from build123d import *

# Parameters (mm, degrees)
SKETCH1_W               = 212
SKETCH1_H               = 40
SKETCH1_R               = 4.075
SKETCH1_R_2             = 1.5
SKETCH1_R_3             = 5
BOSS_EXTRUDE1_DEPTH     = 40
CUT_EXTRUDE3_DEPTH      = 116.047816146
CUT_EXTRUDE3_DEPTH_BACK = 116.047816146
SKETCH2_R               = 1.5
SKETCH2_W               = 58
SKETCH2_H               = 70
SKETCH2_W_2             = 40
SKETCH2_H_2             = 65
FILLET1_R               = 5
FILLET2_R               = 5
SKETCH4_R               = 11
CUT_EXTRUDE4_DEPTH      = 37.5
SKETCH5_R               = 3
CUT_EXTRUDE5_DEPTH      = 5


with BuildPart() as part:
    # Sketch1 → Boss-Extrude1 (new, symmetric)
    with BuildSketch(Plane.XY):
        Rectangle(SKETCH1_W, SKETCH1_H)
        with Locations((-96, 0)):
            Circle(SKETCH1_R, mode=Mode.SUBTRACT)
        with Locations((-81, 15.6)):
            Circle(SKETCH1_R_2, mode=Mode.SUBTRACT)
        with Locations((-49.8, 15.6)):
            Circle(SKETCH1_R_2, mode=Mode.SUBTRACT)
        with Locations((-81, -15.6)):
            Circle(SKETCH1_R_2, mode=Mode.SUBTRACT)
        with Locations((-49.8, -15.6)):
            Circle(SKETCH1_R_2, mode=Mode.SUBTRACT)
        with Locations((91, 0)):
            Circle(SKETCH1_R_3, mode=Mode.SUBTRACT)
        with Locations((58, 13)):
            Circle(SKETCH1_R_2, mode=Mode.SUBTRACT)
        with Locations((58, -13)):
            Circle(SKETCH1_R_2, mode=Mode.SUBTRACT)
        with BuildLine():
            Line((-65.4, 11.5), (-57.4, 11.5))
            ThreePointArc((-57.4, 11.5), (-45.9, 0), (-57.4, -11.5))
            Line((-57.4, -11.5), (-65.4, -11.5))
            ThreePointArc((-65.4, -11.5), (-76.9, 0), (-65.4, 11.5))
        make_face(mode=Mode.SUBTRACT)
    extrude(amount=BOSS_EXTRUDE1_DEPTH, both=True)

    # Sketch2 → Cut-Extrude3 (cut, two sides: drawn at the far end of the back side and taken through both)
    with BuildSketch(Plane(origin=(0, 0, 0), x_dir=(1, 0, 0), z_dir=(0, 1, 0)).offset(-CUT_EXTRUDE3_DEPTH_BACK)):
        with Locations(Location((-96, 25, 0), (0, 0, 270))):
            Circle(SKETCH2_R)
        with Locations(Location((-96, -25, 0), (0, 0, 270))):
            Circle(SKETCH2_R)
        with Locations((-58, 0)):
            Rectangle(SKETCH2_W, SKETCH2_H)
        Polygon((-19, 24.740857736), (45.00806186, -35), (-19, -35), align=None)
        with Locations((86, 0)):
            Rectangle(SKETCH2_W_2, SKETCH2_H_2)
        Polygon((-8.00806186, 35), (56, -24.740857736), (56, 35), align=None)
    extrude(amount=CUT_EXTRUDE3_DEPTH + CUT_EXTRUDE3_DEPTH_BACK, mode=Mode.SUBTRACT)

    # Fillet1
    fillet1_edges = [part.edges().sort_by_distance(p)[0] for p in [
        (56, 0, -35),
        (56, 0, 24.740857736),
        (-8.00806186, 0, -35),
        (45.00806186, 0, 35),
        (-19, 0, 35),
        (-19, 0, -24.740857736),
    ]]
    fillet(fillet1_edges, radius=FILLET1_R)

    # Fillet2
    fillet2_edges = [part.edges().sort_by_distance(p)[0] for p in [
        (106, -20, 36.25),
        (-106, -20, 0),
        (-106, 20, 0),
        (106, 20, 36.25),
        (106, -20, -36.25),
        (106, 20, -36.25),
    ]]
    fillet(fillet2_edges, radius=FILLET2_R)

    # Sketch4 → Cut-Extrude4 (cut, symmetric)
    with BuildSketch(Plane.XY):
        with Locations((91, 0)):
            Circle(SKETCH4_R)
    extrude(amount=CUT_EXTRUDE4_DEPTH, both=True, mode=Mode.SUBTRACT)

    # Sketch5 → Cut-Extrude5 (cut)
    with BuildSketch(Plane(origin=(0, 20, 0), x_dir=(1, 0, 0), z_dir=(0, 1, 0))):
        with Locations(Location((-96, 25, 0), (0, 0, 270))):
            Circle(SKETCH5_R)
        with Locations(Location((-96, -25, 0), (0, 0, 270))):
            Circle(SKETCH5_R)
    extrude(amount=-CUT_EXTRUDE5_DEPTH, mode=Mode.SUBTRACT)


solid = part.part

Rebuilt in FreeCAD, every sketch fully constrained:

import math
import FreeCAD as App
import Part
import Sketcher
Q = App.Units.Quantity


def edges_at(feature, points):
    """Names of the edges that pass closest to the given points."""
    edges = feature.Shape.Edges
    near = lambda p: min(range(len(edges)), key=lambda i: edges[i].distToShape(Part.Vertex(*p))[0])
    return sorted({f"Edge{near(p) + 1}" for p in points})

doc = App.newDocument("Part")
body = doc.addObject("PartDesign::Body", "Body")

# Sketch on XY plane
sketch1 = body.newObject("Sketcher::SketchObject", "Sketch")
sketch1.AttachmentSupport = (doc.getObject("XY_Plane"), [""])
sketch1.MapMode = "FlatFace"
sketch1.addGeometry([
    Part.LineSegment(App.Vector(-106, 20, 0), App.Vector(-106, -20, 0)),  # 0
    Part.LineSegment(App.Vector(-106, -20, 0), App.Vector(106, -20, 0)),  # 1
    Part.LineSegment(App.Vector(106, -20, 0), App.Vector(106, 20, 0)),  # 2
    Part.LineSegment(App.Vector(106, 20, 0), App.Vector(-106, 20, 0)),  # 3
    Part.Circle(App.Vector(-81, -15.6, 0), App.Vector(0, 0, 1), 1.5),  # 4
    Part.Circle(App.Vector(-49.8, -15.6, 0), App.Vector(0, 0, 1), 1.5),  # 5
    Part.Circle(App.Vector(58, -13, 0), App.Vector(0, 0, 1), 1.5),  # 6
    Part.Circle(App.Vector(-96, 0, 0), App.Vector(0, 0, 1), 4.1),  # 7
    Part.ArcOfCircle(Part.Circle(App.Vector(-65.4, 0, 0), App.Vector(0, 0, 1), 11.5), math.radians(90), math.radians(270)),  # 8
    Part.LineSegment(App.Vector(-65.4, 11.5, 0), App.Vector(-57.4, 11.5, 0)),  # 9
    Part.ArcOfCircle(Part.Circle(App.Vector(-57.4, 0, 0), App.Vector(0, 0, 1), 11.5), math.radians(-90), math.radians(90)),  # 10
    Part.LineSegment(App.Vector(-57.4, -11.5, 0), App.Vector(-65.4, -11.5, 0)),  # 11
    Part.Circle(App.Vector(-81, 15.6, 0), App.Vector(0, 0, 1), 1.5),  # 12
    Part.Circle(App.Vector(-49.8, 15.6, 0), App.Vector(0, 0, 1), 1.5),  # 13
    Part.Circle(App.Vector(91, 0, 0), App.Vector(0, 0, 1), 5),  # 14
    Part.Circle(App.Vector(58, 13, 0), App.Vector(0, 0, 1), 1.5),  # 15
], False)
sketch1.addConstraint([
    Sketcher.Constraint("Coincident", 0, 2, 1, 1),
    Sketcher.Constraint("Coincident", 1, 2, 2, 1),
    Sketcher.Constraint("Coincident", 2, 2, 3, 1),
    Sketcher.Constraint("Coincident", 3, 2, 0, 1),
    Sketcher.Constraint("Tangent", 8, 1, 9, 1),
    Sketcher.Constraint("Tangent", 9, 2, 10, 2),
    Sketcher.Constraint("Tangent", 10, 1, 11, 1),
    Sketcher.Constraint("Tangent", 11, 2, 8, 2),
    Sketcher.Constraint("Vertical", 0),
    Sketcher.Constraint("Horizontal", 1),
    Sketcher.Constraint("Vertical", 2),
    Sketcher.Constraint("Horizontal", 3),
    Sketcher.Constraint("Horizontal", 9),
    Sketcher.Constraint("Horizontal", 11),
    Sketcher.Constraint("Equal", 4, 5),
    Sketcher.Constraint("Equal", 5, 6),
    Sketcher.Constraint("Equal", 6, 12),
    Sketcher.Constraint("Equal", 12, 13),
    Sketcher.Constraint("Equal", 13, 15),
    Sketcher.Constraint("Symmetric", 0, 2, 2, 2, -1, 1),
    Sketcher.Constraint("Symmetric", 4, 3, 12, 3, -1),
    Sketcher.Constraint("Symmetric", 5, 3, 13, 3, -1),
    Sketcher.Constraint("Symmetric", 6, 3, 15, 3, -1),
    Sketcher.Constraint("PointOnObject", 7, 3, -1),
    Sketcher.Constraint("PointOnObject", 8, 3, -1),
    Sketcher.Constraint("PointOnObject", 14, 3, -1),
    Sketcher.Constraint("Horizontal", 4, 3, 5, 3),
    Sketcher.Constraint("Diameter", 4, Q("3 mm")),
    Sketcher.Constraint("Diameter", 14, Q("10 mm")),
    Sketcher.Constraint("Radius", 8, Q("11.5 mm")),
    Sketcher.Constraint("Diameter", 7, Q("8.15 mm")),
    Sketcher.Constraint("DistanceX", 1, 1, 1, 2, Q("212 mm")),
    Sketcher.Constraint("DistanceX", 9, 1, 9, 2, Q("8 mm")),
    Sketcher.Constraint("DistanceY", 0, 2, 0, 1, Q("40 mm")),
    Sketcher.Constraint("DistanceX", 4, 3, -1, 1, Q("81 mm")),
    Sketcher.Constraint("DistanceX", -1, 1, 6, 3, Q("58 mm")),
    Sketcher.Constraint("DistanceY", 6, 3, -1, 1, Q("13 mm")),
    Sketcher.Constraint("DistanceX", 7, 3, -1, 1, Q("96 mm")),
    Sketcher.Constraint("DistanceX", -1, 1, 14, 3, Q("91 mm")),
    Sketcher.Constraint("DistanceY", 4, 3, -1, 1, Q("15.6 mm")),
    Sketcher.Constraint("DistanceX", 5, 3, -1, 1, Q("49.8 mm")),
    Sketcher.Constraint("DistanceX", 8, 3, -1, 1, Q("65.4 mm")),
])
pad1 = body.newObject("PartDesign::Pad", "Pad")
pad1.Profile = sketch1
pad1.Length = 80
pad1.Midplane = True

# Sketch on XZ plane
sketch2 = body.newObject("Sketcher::SketchObject", "Sketch001")
sketch2.AttachmentSupport = (doc.getObject("XZ_Plane"), [""])
sketch2.MapMode = "FlatFace"
sketch2.addGeometry([
    Part.Circle(App.Vector(-96, -25, 0), App.Vector(0, 0, 1), 1.5),  # 0
    Part.Circle(App.Vector(-96, 25, 0), App.Vector(0, 0, 1), 1.5),  # 1
    Part.LineSegment(App.Vector(-87, -35, 0), App.Vector(-87, 35, 0)),  # 2
    Part.LineSegment(App.Vector(-87, 35, 0), App.Vector(-29, 35, 0)),  # 3
    Part.LineSegment(App.Vector(-29, 35, 0), App.Vector(-29, -35, 0)),  # 4
    Part.LineSegment(App.Vector(-29, -35, 0), App.Vector(-87, -35, 0)),  # 5
    Part.LineSegment(App.Vector(45, 35, 0), App.Vector(-19, -24.7, 0)),  # 6
    Part.LineSegment(App.Vector(-19, -24.7, 0), App.Vector(-19, 35, 0)),  # 7
    Part.LineSegment(App.Vector(-19, 35, 0), App.Vector(45, 35, 0)),  # 8
    Part.LineSegment(App.Vector(66, -32.5, 0), App.Vector(66, 32.5, 0)),  # 9
    Part.LineSegment(App.Vector(66, 32.5, 0), App.Vector(106, 32.5, 0)),  # 10
    Part.LineSegment(App.Vector(106, 32.5, 0), App.Vector(106, -32.5, 0)),  # 11
    Part.LineSegment(App.Vector(106, -32.5, 0), App.Vector(66, -32.5, 0)),  # 12
    Part.LineSegment(App.Vector(-8, -35, 0), App.Vector(56, 24.7, 0)),  # 13
    Part.LineSegment(App.Vector(56, 24.7, 0), App.Vector(56, -35, 0)),  # 14
    Part.LineSegment(App.Vector(56, -35, 0), App.Vector(-8, -35, 0)),  # 15
], False)
sketch2.addConstraint([
    Sketcher.Constraint("Coincident", 2, 2, 3, 1),
    Sketcher.Constraint("Coincident", 3, 2, 4, 1),
    Sketcher.Constraint("Coincident", 4, 2, 5, 1),
    Sketcher.Constraint("Coincident", 5, 2, 2, 1),
    Sketcher.Constraint("Coincident", 6, 2, 7, 1),
    Sketcher.Constraint("Coincident", 7, 2, 8, 1),
    Sketcher.Constraint("Coincident", 8, 2, 6, 1),
    Sketcher.Constraint("Coincident", 9, 2, 10, 1),
    Sketcher.Constraint("Coincident", 10, 2, 11, 1),
    Sketcher.Constraint("Coincident", 11, 2, 12, 1),
    Sketcher.Constraint("Coincident", 12, 2, 9, 1),
    Sketcher.Constraint("Coincident", 13, 2, 14, 1),
    Sketcher.Constraint("Coincident", 14, 2, 15, 1),
    Sketcher.Constraint("Coincident", 15, 2, 13, 1),
    Sketcher.Constraint("Vertical", 2),
    Sketcher.Constraint("Horizontal", 3),
    Sketcher.Constraint("Vertical", 4),
    Sketcher.Constraint("Horizontal", 5),
    Sketcher.Constraint("Vertical", 7),
    Sketcher.Constraint("Horizontal", 8),
    Sketcher.Constraint("Vertical", 9),
    Sketcher.Constraint("Horizontal", 10),
    Sketcher.Constraint("Vertical", 11),
    Sketcher.Constraint("Horizontal", 12),
    Sketcher.Constraint("Vertical", 14),
    Sketcher.Constraint("Horizontal", 15),
    Sketcher.Constraint("Equal", 0, 1),
    Sketcher.Constraint("Symmetric", 0, 3, 1, 3, -1),
    Sketcher.Constraint("Parallel", 6, 13),
    Sketcher.Constraint("Horizontal", 3, 2, 7, 2),
    Sketcher.Constraint("Horizontal", 5, 2, 14, 2),
    Sketcher.Constraint("Equal", 8, 15),
    Sketcher.Constraint("Diameter", 0, Q("3 mm")),
    Sketcher.Constraint("DistanceX", 3, 1, 3, 2, Q("58 mm")),
    Sketcher.Constraint("DistanceX", 10, 1, 10, 2, Q("40 mm")),
    Sketcher.Constraint("DistanceY", 2, 1, 2, 2, Q("70 mm")),
    Sketcher.Constraint("DistanceY", 9, 1, 9, 2, Q("65 mm")),
    Sketcher.Constraint("DistanceX", 0, 3, -1, 1, Q("96 mm")),
    Sketcher.Constraint("DistanceY", 0, 3, -1, 1, Q("25 mm")),
    Sketcher.Constraint("DistanceX", 2, 2, -1, 1, Q("87 mm")),
    Sketcher.Constraint("DistanceY", -1, 1, 2, 2, Q("35 mm")),
    Sketcher.Constraint("DistanceX", 6, 2, -1, 1, Q("19 mm")),
    Sketcher.Constraint("DistanceX", -1, 1, 9, 2, Q("66 mm")),
    Sketcher.Constraint("DistanceX", -1, 1, 13, 2, Q("56 mm")),
    Sketcher.Constraint("DistanceY", -1, 1, 9, 2, Q("32.5 mm")),
    Sketcher.Constraint("DistanceX", 8, 1, 8, 2, Q("64.008062 mm")),
    Sketcher.Constraint("Distance", 6, Q("87.555708 mm")),
])
pocket1 = body.newObject("PartDesign::Pocket", "Pocket")
pocket1.Profile = sketch2
pocket1.Type = "ThroughAll"
pocket1.Midplane = True
doc.recompute()

fillet = body.newObject("PartDesign::Fillet", "Fillet")
fillet.Base = (pocket1, edges_at(pocket1, [
    (56, 0, -35),
    (56, 0, 24.741),
    (-8.008, 0, -35),
    (45.008, 0, 35),
    (-19, 0, 35),
    (-19, 0, -24.741),
]))
fillet.Radius = 5
doc.recompute()

fillet2 = body.newObject("PartDesign::Fillet", "Fillet001")
fillet2.Base = (fillet, edges_at(fillet, [
    (106, -20, 36.25),
    (-106, -20, 0),
    (-106, 20, 0),
    (106, 20, 36.25),
    (106, -20, -36.25),
    (106, 20, -36.25),
]))
fillet2.Radius = 5

# Sketch on XY plane
sketch3 = body.newObject("Sketcher::SketchObject", "Sketch002")
sketch3.AttachmentSupport = (doc.getObject("XY_Plane"), [""])
sketch3.MapMode = "FlatFace"
sketch3.addGeometry(Part.Circle(App.Vector(91, 0, 0), App.Vector(0, 0, 1), 11), False)
sketch3.addConstraint([
    Sketcher.Constraint("PointOnObject", 0, 3, -1),
    Sketcher.Constraint("Diameter", 0, Q("22 mm")),
    Sketcher.Constraint("DistanceX", -1, 1, 0, 3, Q("91 mm")),
])
pocket2 = body.newObject("PartDesign::Pocket", "Pocket001")
pocket2.Profile = sketch3
pocket2.Length = 75
pocket2.Midplane = True

# Sketch on XZ plane
sketch4 = body.newObject("Sketcher::SketchObject", "Sketch003")
sketch4.AttachmentSupport = (doc.getObject("XZ_Plane"), [""])
sketch4.MapMode = "FlatFace"
sketch4.AttachmentOffset = App.Placement(App.Vector(0, 0, -20), App.Rotation())
sketch4.addGeometry([
    Part.Circle(App.Vector(-96, -25, 0), App.Vector(0, 0, 1), 3),
    Part.Circle(App.Vector(-96, 25, 0), App.Vector(0, 0, 1), 3),
], False)
sketch4.addConstraint([
    Sketcher.Constraint("Equal", 0, 1),
    Sketcher.Constraint("Symmetric", 0, 3, 1, 3, -1),
    Sketcher.Constraint("Diameter", 0, Q("6 mm")),
    Sketcher.Constraint("DistanceX", 0, 3, -1, 1, Q("96 mm")),
    Sketcher.Constraint("DistanceY", 0, 3, -1, 1, Q("25 mm")),
])
pocket3 = body.newObject("PartDesign::Pocket", "Pocket002")
pocket3.Profile = sketch4
pocket3.Length = 5
pocket3.Reversed = True

doc.recompute()
